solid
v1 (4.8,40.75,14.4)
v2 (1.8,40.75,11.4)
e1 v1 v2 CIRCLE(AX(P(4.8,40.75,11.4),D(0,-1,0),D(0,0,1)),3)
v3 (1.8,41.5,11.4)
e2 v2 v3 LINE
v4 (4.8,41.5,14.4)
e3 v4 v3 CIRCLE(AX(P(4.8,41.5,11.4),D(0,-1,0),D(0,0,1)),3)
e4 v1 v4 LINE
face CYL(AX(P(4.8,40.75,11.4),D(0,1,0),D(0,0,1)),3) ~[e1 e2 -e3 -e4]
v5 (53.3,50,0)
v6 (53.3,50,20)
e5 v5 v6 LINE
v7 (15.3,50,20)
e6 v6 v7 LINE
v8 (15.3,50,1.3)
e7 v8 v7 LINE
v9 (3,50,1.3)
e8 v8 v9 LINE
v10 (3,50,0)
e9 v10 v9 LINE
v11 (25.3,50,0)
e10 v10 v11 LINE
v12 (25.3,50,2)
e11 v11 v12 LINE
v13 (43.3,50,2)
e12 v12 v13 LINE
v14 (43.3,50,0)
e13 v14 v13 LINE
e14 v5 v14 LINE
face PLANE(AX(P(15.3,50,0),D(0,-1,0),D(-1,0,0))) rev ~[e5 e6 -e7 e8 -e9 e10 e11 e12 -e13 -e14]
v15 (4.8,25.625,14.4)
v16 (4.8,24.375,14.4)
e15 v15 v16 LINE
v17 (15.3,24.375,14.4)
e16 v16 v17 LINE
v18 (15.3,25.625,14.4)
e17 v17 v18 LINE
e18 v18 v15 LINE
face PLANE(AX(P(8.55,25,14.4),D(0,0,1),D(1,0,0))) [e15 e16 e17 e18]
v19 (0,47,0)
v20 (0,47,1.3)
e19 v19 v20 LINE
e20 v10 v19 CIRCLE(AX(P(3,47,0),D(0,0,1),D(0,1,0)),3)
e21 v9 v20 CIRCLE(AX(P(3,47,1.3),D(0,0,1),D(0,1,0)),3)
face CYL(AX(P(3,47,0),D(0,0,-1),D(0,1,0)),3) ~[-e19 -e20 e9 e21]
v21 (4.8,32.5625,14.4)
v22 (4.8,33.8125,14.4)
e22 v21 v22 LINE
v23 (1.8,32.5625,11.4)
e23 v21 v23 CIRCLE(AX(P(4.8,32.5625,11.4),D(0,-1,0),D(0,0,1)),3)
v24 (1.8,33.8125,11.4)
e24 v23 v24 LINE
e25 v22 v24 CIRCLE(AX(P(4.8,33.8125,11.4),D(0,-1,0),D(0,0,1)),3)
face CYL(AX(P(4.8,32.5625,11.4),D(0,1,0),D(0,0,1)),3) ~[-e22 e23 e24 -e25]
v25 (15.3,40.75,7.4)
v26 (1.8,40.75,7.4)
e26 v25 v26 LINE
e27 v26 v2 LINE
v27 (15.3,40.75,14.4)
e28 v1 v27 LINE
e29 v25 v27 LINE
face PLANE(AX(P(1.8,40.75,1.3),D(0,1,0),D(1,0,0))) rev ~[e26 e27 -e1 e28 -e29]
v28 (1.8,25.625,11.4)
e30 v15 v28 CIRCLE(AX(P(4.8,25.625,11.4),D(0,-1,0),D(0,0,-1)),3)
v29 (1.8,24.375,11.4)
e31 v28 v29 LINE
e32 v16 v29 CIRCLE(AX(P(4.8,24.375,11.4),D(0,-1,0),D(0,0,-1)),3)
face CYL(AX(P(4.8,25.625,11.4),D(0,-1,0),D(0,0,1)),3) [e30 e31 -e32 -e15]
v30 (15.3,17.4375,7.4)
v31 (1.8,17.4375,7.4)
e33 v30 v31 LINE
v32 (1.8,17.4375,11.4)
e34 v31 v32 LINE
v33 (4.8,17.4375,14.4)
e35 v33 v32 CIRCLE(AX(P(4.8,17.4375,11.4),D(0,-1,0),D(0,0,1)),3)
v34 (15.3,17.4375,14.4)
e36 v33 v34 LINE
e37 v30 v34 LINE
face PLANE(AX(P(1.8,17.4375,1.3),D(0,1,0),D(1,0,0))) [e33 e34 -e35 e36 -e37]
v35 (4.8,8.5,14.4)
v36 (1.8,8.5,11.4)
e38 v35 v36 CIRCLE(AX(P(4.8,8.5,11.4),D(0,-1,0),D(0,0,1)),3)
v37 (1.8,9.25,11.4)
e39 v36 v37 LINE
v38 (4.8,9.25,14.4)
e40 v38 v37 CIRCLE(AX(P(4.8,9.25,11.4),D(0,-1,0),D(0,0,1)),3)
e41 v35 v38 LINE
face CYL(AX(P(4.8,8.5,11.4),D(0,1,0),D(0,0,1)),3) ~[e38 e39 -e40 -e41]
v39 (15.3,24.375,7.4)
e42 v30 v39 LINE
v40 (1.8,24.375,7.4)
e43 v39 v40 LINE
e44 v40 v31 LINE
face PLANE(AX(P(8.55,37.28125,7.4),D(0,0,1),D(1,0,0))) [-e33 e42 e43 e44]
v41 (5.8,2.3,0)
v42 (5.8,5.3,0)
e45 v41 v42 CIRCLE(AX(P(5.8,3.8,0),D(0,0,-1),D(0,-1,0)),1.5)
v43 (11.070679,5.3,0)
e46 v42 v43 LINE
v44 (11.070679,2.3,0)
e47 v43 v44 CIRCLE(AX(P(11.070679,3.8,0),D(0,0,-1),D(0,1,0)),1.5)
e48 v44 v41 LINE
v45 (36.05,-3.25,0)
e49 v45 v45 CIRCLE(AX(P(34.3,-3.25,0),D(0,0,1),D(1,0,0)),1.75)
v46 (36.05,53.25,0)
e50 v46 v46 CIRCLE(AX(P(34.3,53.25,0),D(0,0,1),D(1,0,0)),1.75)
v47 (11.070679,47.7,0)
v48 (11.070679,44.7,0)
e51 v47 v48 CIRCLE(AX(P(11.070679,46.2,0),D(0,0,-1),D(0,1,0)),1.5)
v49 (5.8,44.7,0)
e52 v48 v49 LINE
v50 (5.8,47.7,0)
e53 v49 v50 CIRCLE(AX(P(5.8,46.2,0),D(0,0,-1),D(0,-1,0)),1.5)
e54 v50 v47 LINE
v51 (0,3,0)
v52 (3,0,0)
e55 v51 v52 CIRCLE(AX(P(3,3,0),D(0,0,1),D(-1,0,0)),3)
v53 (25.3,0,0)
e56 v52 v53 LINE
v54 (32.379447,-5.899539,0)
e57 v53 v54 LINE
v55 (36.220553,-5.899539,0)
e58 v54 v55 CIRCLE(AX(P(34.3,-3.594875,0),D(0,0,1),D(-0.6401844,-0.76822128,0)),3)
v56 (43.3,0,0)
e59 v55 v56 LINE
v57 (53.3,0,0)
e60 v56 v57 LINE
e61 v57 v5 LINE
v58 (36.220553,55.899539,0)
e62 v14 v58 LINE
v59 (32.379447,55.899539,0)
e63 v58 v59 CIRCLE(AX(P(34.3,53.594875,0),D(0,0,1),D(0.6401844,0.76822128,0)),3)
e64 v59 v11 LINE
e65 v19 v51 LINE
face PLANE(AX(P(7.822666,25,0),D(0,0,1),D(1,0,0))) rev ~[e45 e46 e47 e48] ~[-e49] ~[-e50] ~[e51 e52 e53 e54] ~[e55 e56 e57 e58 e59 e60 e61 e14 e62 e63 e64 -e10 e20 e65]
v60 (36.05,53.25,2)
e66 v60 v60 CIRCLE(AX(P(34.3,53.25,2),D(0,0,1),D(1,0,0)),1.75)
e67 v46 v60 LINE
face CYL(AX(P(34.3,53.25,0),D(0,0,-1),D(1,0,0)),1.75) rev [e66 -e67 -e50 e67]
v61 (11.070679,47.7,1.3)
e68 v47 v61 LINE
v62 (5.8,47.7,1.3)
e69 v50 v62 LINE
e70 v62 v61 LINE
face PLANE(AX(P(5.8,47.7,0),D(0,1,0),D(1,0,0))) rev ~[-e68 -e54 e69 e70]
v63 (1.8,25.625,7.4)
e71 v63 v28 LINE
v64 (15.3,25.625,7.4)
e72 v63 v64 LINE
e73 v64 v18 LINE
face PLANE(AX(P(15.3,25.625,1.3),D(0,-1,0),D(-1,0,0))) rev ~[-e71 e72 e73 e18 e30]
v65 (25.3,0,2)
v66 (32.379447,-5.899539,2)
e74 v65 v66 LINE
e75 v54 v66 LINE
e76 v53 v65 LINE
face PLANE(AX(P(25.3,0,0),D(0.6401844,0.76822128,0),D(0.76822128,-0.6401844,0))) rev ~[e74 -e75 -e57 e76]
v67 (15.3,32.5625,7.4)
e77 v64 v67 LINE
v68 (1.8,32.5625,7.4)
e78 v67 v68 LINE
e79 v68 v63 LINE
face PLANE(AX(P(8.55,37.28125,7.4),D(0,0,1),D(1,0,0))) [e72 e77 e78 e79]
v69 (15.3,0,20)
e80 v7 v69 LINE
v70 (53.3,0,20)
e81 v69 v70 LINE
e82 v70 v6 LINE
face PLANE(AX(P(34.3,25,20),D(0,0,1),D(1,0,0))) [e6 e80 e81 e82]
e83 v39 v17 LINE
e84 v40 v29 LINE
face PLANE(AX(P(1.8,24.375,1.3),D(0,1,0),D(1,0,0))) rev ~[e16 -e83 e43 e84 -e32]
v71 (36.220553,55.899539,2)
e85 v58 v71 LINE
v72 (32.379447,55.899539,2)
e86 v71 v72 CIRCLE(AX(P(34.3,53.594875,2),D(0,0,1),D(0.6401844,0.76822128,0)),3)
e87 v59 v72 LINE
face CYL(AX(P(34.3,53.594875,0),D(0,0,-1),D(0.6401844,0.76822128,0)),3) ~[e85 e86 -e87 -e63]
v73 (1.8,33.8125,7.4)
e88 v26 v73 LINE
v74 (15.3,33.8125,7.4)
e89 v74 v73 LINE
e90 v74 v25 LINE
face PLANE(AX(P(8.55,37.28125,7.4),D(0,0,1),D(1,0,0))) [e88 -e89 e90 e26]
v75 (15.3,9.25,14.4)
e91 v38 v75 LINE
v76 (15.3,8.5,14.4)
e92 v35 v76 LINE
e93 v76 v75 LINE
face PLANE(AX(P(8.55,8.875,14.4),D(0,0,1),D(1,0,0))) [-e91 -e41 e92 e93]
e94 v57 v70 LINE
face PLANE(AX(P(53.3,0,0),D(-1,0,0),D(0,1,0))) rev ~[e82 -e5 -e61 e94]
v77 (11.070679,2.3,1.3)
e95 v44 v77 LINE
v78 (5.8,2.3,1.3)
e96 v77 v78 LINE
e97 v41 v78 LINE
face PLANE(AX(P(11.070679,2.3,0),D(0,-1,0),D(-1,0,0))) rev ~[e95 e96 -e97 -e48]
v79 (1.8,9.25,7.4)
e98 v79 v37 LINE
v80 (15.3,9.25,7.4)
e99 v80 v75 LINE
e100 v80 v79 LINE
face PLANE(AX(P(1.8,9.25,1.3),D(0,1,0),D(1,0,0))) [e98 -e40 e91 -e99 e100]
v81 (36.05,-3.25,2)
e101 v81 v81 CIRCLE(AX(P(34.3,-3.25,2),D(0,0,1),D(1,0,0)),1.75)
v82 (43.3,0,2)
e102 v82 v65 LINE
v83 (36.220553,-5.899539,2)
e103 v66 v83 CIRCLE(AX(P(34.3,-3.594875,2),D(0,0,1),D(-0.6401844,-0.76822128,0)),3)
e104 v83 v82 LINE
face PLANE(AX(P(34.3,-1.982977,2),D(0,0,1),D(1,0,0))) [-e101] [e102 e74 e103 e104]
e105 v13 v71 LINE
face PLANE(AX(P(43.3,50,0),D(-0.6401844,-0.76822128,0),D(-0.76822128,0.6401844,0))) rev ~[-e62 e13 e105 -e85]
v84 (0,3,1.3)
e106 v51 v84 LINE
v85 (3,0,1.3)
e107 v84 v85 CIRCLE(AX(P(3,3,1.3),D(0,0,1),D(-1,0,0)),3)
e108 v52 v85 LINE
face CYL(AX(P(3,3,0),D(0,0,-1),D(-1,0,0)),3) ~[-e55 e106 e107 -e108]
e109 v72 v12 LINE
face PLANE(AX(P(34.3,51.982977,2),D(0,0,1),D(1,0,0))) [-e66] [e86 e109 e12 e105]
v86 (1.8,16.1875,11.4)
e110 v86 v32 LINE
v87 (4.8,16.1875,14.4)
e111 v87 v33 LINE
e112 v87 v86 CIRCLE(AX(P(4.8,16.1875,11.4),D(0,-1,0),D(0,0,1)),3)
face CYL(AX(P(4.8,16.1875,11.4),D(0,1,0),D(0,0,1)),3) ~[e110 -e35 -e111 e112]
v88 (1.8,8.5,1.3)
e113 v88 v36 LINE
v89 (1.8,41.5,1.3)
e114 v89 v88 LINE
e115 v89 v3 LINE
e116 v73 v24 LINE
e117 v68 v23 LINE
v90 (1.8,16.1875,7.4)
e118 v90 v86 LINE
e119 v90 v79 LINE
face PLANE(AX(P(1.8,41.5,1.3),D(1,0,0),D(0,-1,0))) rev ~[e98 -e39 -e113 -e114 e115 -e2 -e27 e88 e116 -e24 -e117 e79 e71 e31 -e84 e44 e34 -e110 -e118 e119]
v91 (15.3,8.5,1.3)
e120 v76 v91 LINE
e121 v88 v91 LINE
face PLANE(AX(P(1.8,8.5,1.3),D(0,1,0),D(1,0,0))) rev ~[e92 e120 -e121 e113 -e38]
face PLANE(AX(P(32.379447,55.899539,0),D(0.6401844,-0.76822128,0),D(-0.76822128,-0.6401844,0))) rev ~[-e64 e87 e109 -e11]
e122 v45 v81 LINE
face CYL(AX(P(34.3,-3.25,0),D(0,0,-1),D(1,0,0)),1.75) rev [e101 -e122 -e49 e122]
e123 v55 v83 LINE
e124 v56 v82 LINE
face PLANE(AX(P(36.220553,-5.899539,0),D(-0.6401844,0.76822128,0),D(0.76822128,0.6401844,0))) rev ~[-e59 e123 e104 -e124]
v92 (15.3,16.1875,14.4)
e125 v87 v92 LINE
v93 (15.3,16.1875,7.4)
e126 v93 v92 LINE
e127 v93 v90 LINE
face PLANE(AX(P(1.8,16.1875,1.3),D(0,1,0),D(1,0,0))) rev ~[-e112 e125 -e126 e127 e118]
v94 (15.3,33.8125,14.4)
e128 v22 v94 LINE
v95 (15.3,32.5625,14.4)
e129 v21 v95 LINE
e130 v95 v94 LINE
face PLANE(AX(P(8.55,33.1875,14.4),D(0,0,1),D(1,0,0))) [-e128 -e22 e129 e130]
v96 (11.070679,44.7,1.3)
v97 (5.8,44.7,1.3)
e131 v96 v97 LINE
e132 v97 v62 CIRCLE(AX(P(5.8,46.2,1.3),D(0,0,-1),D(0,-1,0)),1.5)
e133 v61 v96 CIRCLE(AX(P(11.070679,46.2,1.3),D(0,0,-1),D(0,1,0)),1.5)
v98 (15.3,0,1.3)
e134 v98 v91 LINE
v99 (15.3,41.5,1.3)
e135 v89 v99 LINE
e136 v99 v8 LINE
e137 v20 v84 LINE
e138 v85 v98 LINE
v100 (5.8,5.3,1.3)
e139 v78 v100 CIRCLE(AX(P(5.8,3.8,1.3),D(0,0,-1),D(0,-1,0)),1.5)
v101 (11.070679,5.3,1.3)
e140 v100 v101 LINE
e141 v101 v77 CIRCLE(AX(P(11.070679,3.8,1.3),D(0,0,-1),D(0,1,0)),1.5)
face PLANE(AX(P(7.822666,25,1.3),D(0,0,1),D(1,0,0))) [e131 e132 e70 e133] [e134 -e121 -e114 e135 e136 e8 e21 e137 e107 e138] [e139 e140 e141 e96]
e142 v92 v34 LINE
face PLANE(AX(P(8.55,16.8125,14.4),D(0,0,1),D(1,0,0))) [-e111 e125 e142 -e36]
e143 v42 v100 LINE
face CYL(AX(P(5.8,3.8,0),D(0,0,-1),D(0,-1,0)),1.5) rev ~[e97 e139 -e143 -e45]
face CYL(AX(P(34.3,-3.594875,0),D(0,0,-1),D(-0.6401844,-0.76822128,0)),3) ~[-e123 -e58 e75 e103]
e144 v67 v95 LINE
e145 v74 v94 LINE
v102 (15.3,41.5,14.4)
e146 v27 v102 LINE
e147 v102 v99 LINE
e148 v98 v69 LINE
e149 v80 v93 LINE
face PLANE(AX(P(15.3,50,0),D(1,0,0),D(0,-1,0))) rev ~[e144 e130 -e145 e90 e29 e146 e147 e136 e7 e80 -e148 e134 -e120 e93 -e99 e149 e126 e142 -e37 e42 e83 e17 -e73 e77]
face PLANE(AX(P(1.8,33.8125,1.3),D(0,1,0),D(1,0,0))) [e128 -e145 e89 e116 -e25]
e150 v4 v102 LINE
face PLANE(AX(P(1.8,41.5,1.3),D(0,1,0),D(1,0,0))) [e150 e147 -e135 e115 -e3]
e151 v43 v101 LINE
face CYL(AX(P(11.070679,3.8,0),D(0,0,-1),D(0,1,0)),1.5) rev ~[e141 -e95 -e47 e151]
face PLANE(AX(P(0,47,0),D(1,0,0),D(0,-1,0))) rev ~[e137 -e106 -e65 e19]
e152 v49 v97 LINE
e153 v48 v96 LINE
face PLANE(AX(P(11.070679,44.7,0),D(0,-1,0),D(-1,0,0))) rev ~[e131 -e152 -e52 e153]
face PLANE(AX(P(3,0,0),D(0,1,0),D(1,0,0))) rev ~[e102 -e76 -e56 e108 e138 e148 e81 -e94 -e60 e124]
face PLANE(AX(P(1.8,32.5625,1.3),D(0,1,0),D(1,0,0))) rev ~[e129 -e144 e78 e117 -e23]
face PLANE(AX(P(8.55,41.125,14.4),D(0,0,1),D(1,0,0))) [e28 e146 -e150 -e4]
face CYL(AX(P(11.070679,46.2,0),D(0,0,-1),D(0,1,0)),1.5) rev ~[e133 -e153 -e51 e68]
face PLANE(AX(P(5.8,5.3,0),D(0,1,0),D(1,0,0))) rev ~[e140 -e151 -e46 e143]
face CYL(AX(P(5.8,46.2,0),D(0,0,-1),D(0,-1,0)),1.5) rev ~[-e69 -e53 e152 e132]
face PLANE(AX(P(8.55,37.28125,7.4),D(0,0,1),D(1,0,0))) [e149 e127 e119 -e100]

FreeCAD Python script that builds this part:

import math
import FreeCAD as App
import Part
import Sketcher
from FreeCAD import Vector
Q = App.Units.Quantity


def edges_at(feature, points):
    """Names of the edges that pass closest to the given points."""
    edges = feature.Shape.Edges
    near = lambda p: min(range(len(edges)), key=lambda i: edges[i].distToShape(Part.Vertex(*p))[0])
    return sorted({f"Edge{near(p) + 1}" for p in points})


def add_polygon(sketch, points):
    """Adds a closed chain of lines whose ends are joined by coincident constraints."""
    first, n = sketch.GeometryCount, len(points)
    for a, b in zip(points, points[1:] + points[:1]):
        sketch.addGeometry(Part.LineSegment(App.Vector(*a, 0), App.Vector(*b, 0)), False)
    for i in range(n):
        sketch.addConstraint(Sketcher.Constraint("Coincident", first + i, 2, first + (i + 1) % n, 1))

doc = App.newDocument("Part")
body = doc.addObject("PartDesign::Body", "Body")

# Sketch on XY plane
sketch1 = body.newObject("Sketcher::SketchObject", "Sketch")
sketch1.AttachmentSupport = (doc.getObject("XY_Plane"), [""])
sketch1.MapMode = "FlatFace"
add_polygon(sketch1, [(15, 50), (15, 0), (53, 0), (53, 50)])  # lines 0-3
sketch1.addConstraint([
    Sketcher.Constraint("Vertical", 0),
    Sketcher.Constraint("Horizontal", 1),
    Sketcher.Constraint("Vertical", 2),
    Sketcher.Constraint("Horizontal", 3),
    Sketcher.Constraint("PointOnObject", 0, 2, -1),
    Sketcher.Constraint("DistanceX", 1, 1, 1, 2, Q("38 mm")),
    Sketcher.Constraint("DistanceY", 0, 2, 0, 1, Q("50 mm")),
    Sketcher.Constraint("DistanceX", -1, 1, 0, 2, Q("15.3 mm")),
])
pad1 = body.newObject("PartDesign::Pad", "Pad")
pad1.Profile = sketch1
pad1.Length = 20

# Sketch on XY plane
sketch2 = body.newObject("Sketcher::SketchObject", "Sketch001")
sketch2.AttachmentSupport = (doc.getObject("XY_Plane"), [""])
sketch2.MapMode = "FlatFace"
sketch2.addGeometry([
    Part.LineSegment(Vector(43.3, 0, 0), Vector(25.3, 0, 0)),  # 0
    Part.LineSegment(Vector(25.3, 0, 0), Vector(32.4, -5.9, 0)),  # 1
    Part.ArcOfCircle(Part.Circle(Vector(34.3, -3.6, 0), Vector(0, 0, 1), 3), math.radians(-130), math.radians(-50)),  # 2
    Part.LineSegment(Vector(36.2, -5.9, 0), Vector(43.3, 0, 0)),  # 3
    Part.Circle(Vector(34.3, -3.2, 0), Vector(0, 0, 1), 1.8),  # 4
    Part.LineSegment(Vector(32.4, 55.9, 0), Vector(25.3, 50, 0)),  # 5
    Part.LineSegment(Vector(25.3, 50, 0), Vector(43.3, 50, 0)),  # 6
    Part.LineSegment(Vector(43.3, 50, 0), Vector(36.2, 55.9, 0)),  # 7
    Part.ArcOfCircle(Part.Circle(Vector(34.3, 53.6, 0), Vector(0, 0, 1), 3), math.radians(50), math.radians(130)),  # 8
    Part.Circle(Vector(34.3, 53.2, 0), Vector(0, 0, 1), 1.8),  # 9
], False)
sketch2.addConstraint([
    Sketcher.Constraint("Coincident", 0, 2, 1, 1),
    Sketcher.Constraint("Tangent", 1, 2, 2, 1),
    Sketcher.Constraint("Tangent", 2, 2, 3, 1),
    Sketcher.Constraint("Coincident", 3, 2, 0, 1),
    Sketcher.Constraint("Coincident", 5, 2, 6, 1),
    Sketcher.Constraint("Coincident", 6, 2, 7, 1),
    Sketcher.Constraint("Tangent", 7, 2, 8, 1),
    Sketcher.Constraint("Tangent", 8, 2, 5, 1),
    Sketcher.Constraint("Horizontal", 0),
    Sketcher.Constraint("Horizontal", 6),
    Sketcher.Constraint("Equal", 2, 8),
    Sketcher.Constraint("Equal", 4, 9),
    Sketcher.Constraint("PointOnObject", 0, 2, -1),
    Sketcher.Constraint("Parallel", 3, 5),
    Sketcher.Constraint("Parallel", 1, 7),
    Sketcher.Constraint("Horizontal", 1, 2, 2, 2),
    Sketcher.Constraint("Vertical", 2, 3, 4, 3),
    Sketcher.Constraint("Vertical", 4, 3, 8, 3),
    Sketcher.Constraint("Vertical", 8, 3, 9, 3),
    Sketcher.Constraint("Vertical", 0, 2, 5, 2),
    Sketcher.Constraint("Radius", 2, Q("3 mm")),
    Sketcher.Constraint("Diameter", 4, Q("3.5 mm")),
    Sketcher.Constraint("DistanceX", 0, 2, 0, 1, Q("18 mm")),
    Sketcher.Constraint("DistanceY", -1, 1, 5, 2, Q("50 mm")),
    Sketcher.Constraint("DistanceX", -1, 1, 2, 3, Q("34.3 mm")),
    Sketcher.Constraint("DistanceY", 4, 3, 9, 3, Q("56.5 mm")),
    Sketcher.Constraint("DistanceY", 4, 3, -1, 1, Q("3.25 mm")),
    Sketcher.Constraint("DistanceY", 1, 2, -1, 1, Q("5.899539 mm")),
])
pad2 = body.newObject("PartDesign::Pad", "Pad001")
pad2.Profile = sketch2
pad2.Length = 2

# Sketch on XY plane
sketch3 = body.newObject("Sketcher::SketchObject", "Sketch002")
sketch3.AttachmentSupport = (doc.getObject("XY_Plane"), [""])
sketch3.MapMode = "FlatFace"
sketch3.addGeometry([
    Part.ArcOfCircle(Part.Circle(Vector(3, 3, 0), Vector(0, 0, 1), 3), math.radians(180), math.radians(270)),  # 0
    Part.LineSegment(Vector(3, 0, 0), Vector(15.3, 0, 0)),  # 1
    Part.LineSegment(Vector(15.3, 0, 0), Vector(15.3, 50, 0)),  # 2
    Part.LineSegment(Vector(15.3, 50, 0), Vector(3, 50, 0)),  # 3
    Part.ArcOfCircle(Part.Circle(Vector(3, 47, 0), Vector(0, 0, 1), 3), math.radians(90), math.radians(180)),  # 4
    Part.LineSegment(Vector(0, 47, 0), Vector(0, 3, 0)),  # 5
    Part.ArcOfCircle(Part.Circle(Vector(11.1, 3.8, 0), Vector(0, 0, 1), 1.5), math.radians(-90), math.radians(90)),  # 6
    Part.LineSegment(Vector(11.1, 2.3, 0), Vector(5.8, 2.3, 0)),  # 7
    Part.ArcOfCircle(Part.Circle(Vector(5.8, 3.8, 0), Vector(0, 0, 1), 1.5), math.radians(90), math.radians(270)),  # 8
    Part.LineSegment(Vector(5.8, 5.3, 0), Vector(11.1, 5.3, 0)),  # 9
    Part.ArcOfCircle(Part.Circle(Vector(11.1, 46.2, 0), Vector(0, 0, 1), 1.5), math.radians(-90), math.radians(90)),  # 10
    Part.LineSegment(Vector(11.1, 44.7, 0), Vector(5.8, 44.7, 0)),  # 11
    Part.ArcOfCircle(Part.Circle(Vector(5.8, 46.2, 0), Vector(0, 0, 1), 1.5), math.radians(90), math.radians(270)),  # 12
    Part.LineSegment(Vector(5.8, 47.7, 0), Vector(11.1, 47.7, 0)),  # 13
], False)
sketch3.addConstraint([
    Sketcher.Constraint("Tangent", 0, 2, 1, 1),
    Sketcher.Constraint("Coincident", 1, 2, 2, 1),
    Sketcher.Constraint("Coincident", 2, 2, 3, 1),
    Sketcher.Constraint("Tangent", 3, 2, 4, 1),
    Sketcher.Constraint("Tangent", 4, 2, 5, 1),
    Sketcher.Constraint("Tangent", 5, 2, 0, 1),
    Sketcher.Constraint("Tangent", 6, 1, 7, 1),
    Sketcher.Constraint("Tangent", 7, 2, 8, 2),
    Sketcher.Constraint("Tangent", 8, 1, 9, 1),
    Sketcher.Constraint("Tangent", 9, 2, 6, 2),
    Sketcher.Constraint("Tangent", 10, 1, 11, 1),
    Sketcher.Constraint("Tangent", 11, 2, 12, 2),
    Sketcher.Constraint("Tangent", 12, 1, 13, 1),
    Sketcher.Constraint("Tangent", 13, 2, 10, 2),
    Sketcher.Constraint("Horizontal", 1),
    Sketcher.Constraint("Vertical", 2),
    Sketcher.Constraint("Horizontal", 3),
    Sketcher.Constraint("Vertical", 5),
    Sketcher.Constraint("Horizontal", 7),
    Sketcher.Constraint("Horizontal", 9),
    Sketcher.Constraint("Horizontal", 11),
    Sketcher.Constraint("Horizontal", 13),
    Sketcher.Constraint("Equal", 0, 4),
    Sketcher.Constraint("Equal", 8, 10),
    Sketcher.Constraint("PointOnObject", 0, 2, -1),
    Sketcher.Constraint("PointOnObject", 4, 2, -2),
    Sketcher.Constraint("Vertical", 6, 3, 10, 3),
    Sketcher.Constraint("Vertical", 8, 3, 12, 3),
    Sketcher.Constraint("Radius", 0, Q("3 mm")),
    Sketcher.Constraint("Radius", 6, Q("1.5 mm")),
    Sketcher.Constraint("DistanceY", 2, 1, 2, 2, Q("50 mm")),
    Sketcher.Constraint("DistanceX", 1, 1, 1, 2, Q("12.3 mm")),
    Sketcher.Constraint("DistanceY", -1, 1, 6, 3, Q("3.8 mm")),
    Sketcher.Constraint("DistanceX", -1, 1, 8, 3, Q("5.8 mm")),
    Sketcher.Constraint("DistanceY", -1, 1, 10, 3, Q("46.2 mm")),
    Sketcher.Constraint("DistanceX", 7, 2, 7, 1, Q("5.270679 mm")),
])
pad3 = body.newObject("PartDesign::Pad", "Pad002")
pad3.Profile = sketch3
pad3.Length = 1.3

# Sketch on XY plane
sketch4 = body.newObject("Sketcher::SketchObject", "Sketch003")
sketch4.AttachmentSupport = (doc.getObject("XY_Plane"), [""])
sketch4.MapMode = "FlatFace"
sketch4.AttachmentOffset = App.Placement(Vector(0, 0, 1.3), App.Rotation())
add_polygon(sketch4, [(2, 8), (15, 8), (15, 42), (2, 42)])  # lines 0-3
sketch4.addConstraint([
    Sketcher.Constraint("Horizontal", 0),
    Sketcher.Constraint("Vertical", 1),
    Sketcher.Constraint("Horizontal", 2),
    Sketcher.Constraint("Vertical", 3),
    Sketcher.Constraint("DistanceY", 1, 1, 1, 2, Q("33 mm")),
    Sketcher.Constraint("DistanceX", 0, 1, 0, 2, Q("13.5 mm")),
    Sketcher.Constraint("DistanceX", -1, 1, 0, 2, Q("15.3 mm")),
    Sketcher.Constraint("DistanceY", -1, 1, 0, 2, Q("8.5 mm")),
])
pad4 = body.newObject("PartDesign::Pad", "Pad003")
pad4.Profile = sketch4
pad4.Length = 6.1

# Sketch on XY plane
sketch5 = body.newObject("Sketcher::SketchObject", "Sketch004")
sketch5.AttachmentSupport = (doc.getObject("XY_Plane"), [""])
sketch5.MapMode = "FlatFace"
sketch5.AttachmentOffset = App.Placement(Vector(0, 0, 1.3), App.Rotation())
add_polygon(sketch5, [(1.8, 41.5), (1.8, 40.8), (15.3, 40.8), (15.3, 41.5)])  # lines 0-3
add_polygon(sketch5, [(1.8, 9.2), (1.8, 8.5), (15.3, 8.5), (15.3, 9.2)])  # lines 4-7
add_polygon(sketch5, [(1.8, 33.8), (1.8, 32.6), (15.3, 32.6), (15.3, 33.8)])  # lines 8-11
add_polygon(sketch5, [(15.3, 25.6), (1.8, 25.6), (1.8, 24.4), (15.3, 24.4)])  # lines 12-15
add_polygon(sketch5, [(1.8, 17.4), (1.8, 16.2), (15.3, 16.2), (15.3, 17.4)])  # lines 16-19
sketch5.addConstraint([
    Sketcher.Constraint("Vertical", 0),
    Sketcher.Constraint("Horizontal", 1),
    Sketcher.Constraint("Vertical", 2),
    Sketcher.Constraint("Horizontal", 3),
    Sketcher.Constraint("Vertical", 4),
    Sketcher.Constraint("Horizontal", 5),
    Sketcher.Constraint("Vertical", 6),
    Sketcher.Constraint("Horizontal", 7),
    Sketcher.Constraint("Vertical", 8),
    Sketcher.Constraint("Horizontal", 9),
    Sketcher.Constraint("Vertical", 10),
    Sketcher.Constraint("Horizontal", 11),
    Sketcher.Constraint("Horizontal", 12),
    Sketcher.Constraint("Vertical", 13),
    Sketcher.Constraint("Horizontal", 14),
    Sketcher.Constraint("Vertical", 15),
    Sketcher.Constraint("Vertical", 16),
    Sketcher.Constraint("Horizontal", 17),
    Sketcher.Constraint("Vertical", 18),
    Sketcher.Constraint("Horizontal", 19),
    Sketcher.Constraint("Vertical", 3, 2, 4, 2),
    Sketcher.Constraint("Vertical", 2, 2, 5, 2),
    Sketcher.Constraint("Vertical", 7, 2, 8, 2),
    Sketcher.Constraint("Vertical", 6, 2, 9, 2),
    Sketcher.Constraint("Vertical", 11, 2, 12, 2),
    Sketcher.Constraint("Vertical", 10, 2, 14, 2),
    Sketcher.Constraint("Vertical", 13, 2, 16, 2),
    Sketcher.Constraint("Vertical", 15, 2, 17, 2),
    Sketcher.Constraint("Equal", 2, 4),
    Sketcher.Constraint("Equal", 10, 13),
    Sketcher.Constraint("Equal", 15, 16),
    Sketcher.Constraint("DistanceX", 1, 1, 1, 2, Q("13.5 mm")),
    Sketcher.Constraint("DistanceY", 4, 2, 3, 2, Q("33 mm")),
    Sketcher.Constraint("DistanceY", 0, 2, 0, 1, Q("0.75 mm")),
    Sketcher.Constraint("DistanceY", 8, 2, 8, 1, Q("1.25 mm")),
    Sketcher.Constraint("DistanceX", -1, 1, 0, 2, Q("1.8 mm")),
    Sketcher.Constraint("DistanceY", -1, 1, 2, 2, Q("41.5 mm")),
    Sketcher.Constraint("DistanceY", -1, 1, 12, 2, Q("25.625 mm")),
    Sketcher.Constraint("DistanceY", -1, 1, 8, 2, Q("32.5625 mm")),
    Sketcher.Constraint("DistanceY", -1, 1, 16, 2, Q("16.1875 mm")),
])
pad5 = body.newObject("PartDesign::Pad", "Pad004")
pad5.Profile = sketch5
pad5.Length = 13.1
doc.recompute()

fillet = body.newObject("PartDesign::Fillet", "Fillet")
fillet.Base = (pad5, edges_at(pad5, [
    (1.8, 41.125, 14.4),
    (1.8, 33.188, 14.4),
    (1.8, 8.875, 14.4),
    (1.8, 25, 14.4),
    (1.8, 16.812, 14.4),
]))
fillet.Radius = 3

doc.recompute()
